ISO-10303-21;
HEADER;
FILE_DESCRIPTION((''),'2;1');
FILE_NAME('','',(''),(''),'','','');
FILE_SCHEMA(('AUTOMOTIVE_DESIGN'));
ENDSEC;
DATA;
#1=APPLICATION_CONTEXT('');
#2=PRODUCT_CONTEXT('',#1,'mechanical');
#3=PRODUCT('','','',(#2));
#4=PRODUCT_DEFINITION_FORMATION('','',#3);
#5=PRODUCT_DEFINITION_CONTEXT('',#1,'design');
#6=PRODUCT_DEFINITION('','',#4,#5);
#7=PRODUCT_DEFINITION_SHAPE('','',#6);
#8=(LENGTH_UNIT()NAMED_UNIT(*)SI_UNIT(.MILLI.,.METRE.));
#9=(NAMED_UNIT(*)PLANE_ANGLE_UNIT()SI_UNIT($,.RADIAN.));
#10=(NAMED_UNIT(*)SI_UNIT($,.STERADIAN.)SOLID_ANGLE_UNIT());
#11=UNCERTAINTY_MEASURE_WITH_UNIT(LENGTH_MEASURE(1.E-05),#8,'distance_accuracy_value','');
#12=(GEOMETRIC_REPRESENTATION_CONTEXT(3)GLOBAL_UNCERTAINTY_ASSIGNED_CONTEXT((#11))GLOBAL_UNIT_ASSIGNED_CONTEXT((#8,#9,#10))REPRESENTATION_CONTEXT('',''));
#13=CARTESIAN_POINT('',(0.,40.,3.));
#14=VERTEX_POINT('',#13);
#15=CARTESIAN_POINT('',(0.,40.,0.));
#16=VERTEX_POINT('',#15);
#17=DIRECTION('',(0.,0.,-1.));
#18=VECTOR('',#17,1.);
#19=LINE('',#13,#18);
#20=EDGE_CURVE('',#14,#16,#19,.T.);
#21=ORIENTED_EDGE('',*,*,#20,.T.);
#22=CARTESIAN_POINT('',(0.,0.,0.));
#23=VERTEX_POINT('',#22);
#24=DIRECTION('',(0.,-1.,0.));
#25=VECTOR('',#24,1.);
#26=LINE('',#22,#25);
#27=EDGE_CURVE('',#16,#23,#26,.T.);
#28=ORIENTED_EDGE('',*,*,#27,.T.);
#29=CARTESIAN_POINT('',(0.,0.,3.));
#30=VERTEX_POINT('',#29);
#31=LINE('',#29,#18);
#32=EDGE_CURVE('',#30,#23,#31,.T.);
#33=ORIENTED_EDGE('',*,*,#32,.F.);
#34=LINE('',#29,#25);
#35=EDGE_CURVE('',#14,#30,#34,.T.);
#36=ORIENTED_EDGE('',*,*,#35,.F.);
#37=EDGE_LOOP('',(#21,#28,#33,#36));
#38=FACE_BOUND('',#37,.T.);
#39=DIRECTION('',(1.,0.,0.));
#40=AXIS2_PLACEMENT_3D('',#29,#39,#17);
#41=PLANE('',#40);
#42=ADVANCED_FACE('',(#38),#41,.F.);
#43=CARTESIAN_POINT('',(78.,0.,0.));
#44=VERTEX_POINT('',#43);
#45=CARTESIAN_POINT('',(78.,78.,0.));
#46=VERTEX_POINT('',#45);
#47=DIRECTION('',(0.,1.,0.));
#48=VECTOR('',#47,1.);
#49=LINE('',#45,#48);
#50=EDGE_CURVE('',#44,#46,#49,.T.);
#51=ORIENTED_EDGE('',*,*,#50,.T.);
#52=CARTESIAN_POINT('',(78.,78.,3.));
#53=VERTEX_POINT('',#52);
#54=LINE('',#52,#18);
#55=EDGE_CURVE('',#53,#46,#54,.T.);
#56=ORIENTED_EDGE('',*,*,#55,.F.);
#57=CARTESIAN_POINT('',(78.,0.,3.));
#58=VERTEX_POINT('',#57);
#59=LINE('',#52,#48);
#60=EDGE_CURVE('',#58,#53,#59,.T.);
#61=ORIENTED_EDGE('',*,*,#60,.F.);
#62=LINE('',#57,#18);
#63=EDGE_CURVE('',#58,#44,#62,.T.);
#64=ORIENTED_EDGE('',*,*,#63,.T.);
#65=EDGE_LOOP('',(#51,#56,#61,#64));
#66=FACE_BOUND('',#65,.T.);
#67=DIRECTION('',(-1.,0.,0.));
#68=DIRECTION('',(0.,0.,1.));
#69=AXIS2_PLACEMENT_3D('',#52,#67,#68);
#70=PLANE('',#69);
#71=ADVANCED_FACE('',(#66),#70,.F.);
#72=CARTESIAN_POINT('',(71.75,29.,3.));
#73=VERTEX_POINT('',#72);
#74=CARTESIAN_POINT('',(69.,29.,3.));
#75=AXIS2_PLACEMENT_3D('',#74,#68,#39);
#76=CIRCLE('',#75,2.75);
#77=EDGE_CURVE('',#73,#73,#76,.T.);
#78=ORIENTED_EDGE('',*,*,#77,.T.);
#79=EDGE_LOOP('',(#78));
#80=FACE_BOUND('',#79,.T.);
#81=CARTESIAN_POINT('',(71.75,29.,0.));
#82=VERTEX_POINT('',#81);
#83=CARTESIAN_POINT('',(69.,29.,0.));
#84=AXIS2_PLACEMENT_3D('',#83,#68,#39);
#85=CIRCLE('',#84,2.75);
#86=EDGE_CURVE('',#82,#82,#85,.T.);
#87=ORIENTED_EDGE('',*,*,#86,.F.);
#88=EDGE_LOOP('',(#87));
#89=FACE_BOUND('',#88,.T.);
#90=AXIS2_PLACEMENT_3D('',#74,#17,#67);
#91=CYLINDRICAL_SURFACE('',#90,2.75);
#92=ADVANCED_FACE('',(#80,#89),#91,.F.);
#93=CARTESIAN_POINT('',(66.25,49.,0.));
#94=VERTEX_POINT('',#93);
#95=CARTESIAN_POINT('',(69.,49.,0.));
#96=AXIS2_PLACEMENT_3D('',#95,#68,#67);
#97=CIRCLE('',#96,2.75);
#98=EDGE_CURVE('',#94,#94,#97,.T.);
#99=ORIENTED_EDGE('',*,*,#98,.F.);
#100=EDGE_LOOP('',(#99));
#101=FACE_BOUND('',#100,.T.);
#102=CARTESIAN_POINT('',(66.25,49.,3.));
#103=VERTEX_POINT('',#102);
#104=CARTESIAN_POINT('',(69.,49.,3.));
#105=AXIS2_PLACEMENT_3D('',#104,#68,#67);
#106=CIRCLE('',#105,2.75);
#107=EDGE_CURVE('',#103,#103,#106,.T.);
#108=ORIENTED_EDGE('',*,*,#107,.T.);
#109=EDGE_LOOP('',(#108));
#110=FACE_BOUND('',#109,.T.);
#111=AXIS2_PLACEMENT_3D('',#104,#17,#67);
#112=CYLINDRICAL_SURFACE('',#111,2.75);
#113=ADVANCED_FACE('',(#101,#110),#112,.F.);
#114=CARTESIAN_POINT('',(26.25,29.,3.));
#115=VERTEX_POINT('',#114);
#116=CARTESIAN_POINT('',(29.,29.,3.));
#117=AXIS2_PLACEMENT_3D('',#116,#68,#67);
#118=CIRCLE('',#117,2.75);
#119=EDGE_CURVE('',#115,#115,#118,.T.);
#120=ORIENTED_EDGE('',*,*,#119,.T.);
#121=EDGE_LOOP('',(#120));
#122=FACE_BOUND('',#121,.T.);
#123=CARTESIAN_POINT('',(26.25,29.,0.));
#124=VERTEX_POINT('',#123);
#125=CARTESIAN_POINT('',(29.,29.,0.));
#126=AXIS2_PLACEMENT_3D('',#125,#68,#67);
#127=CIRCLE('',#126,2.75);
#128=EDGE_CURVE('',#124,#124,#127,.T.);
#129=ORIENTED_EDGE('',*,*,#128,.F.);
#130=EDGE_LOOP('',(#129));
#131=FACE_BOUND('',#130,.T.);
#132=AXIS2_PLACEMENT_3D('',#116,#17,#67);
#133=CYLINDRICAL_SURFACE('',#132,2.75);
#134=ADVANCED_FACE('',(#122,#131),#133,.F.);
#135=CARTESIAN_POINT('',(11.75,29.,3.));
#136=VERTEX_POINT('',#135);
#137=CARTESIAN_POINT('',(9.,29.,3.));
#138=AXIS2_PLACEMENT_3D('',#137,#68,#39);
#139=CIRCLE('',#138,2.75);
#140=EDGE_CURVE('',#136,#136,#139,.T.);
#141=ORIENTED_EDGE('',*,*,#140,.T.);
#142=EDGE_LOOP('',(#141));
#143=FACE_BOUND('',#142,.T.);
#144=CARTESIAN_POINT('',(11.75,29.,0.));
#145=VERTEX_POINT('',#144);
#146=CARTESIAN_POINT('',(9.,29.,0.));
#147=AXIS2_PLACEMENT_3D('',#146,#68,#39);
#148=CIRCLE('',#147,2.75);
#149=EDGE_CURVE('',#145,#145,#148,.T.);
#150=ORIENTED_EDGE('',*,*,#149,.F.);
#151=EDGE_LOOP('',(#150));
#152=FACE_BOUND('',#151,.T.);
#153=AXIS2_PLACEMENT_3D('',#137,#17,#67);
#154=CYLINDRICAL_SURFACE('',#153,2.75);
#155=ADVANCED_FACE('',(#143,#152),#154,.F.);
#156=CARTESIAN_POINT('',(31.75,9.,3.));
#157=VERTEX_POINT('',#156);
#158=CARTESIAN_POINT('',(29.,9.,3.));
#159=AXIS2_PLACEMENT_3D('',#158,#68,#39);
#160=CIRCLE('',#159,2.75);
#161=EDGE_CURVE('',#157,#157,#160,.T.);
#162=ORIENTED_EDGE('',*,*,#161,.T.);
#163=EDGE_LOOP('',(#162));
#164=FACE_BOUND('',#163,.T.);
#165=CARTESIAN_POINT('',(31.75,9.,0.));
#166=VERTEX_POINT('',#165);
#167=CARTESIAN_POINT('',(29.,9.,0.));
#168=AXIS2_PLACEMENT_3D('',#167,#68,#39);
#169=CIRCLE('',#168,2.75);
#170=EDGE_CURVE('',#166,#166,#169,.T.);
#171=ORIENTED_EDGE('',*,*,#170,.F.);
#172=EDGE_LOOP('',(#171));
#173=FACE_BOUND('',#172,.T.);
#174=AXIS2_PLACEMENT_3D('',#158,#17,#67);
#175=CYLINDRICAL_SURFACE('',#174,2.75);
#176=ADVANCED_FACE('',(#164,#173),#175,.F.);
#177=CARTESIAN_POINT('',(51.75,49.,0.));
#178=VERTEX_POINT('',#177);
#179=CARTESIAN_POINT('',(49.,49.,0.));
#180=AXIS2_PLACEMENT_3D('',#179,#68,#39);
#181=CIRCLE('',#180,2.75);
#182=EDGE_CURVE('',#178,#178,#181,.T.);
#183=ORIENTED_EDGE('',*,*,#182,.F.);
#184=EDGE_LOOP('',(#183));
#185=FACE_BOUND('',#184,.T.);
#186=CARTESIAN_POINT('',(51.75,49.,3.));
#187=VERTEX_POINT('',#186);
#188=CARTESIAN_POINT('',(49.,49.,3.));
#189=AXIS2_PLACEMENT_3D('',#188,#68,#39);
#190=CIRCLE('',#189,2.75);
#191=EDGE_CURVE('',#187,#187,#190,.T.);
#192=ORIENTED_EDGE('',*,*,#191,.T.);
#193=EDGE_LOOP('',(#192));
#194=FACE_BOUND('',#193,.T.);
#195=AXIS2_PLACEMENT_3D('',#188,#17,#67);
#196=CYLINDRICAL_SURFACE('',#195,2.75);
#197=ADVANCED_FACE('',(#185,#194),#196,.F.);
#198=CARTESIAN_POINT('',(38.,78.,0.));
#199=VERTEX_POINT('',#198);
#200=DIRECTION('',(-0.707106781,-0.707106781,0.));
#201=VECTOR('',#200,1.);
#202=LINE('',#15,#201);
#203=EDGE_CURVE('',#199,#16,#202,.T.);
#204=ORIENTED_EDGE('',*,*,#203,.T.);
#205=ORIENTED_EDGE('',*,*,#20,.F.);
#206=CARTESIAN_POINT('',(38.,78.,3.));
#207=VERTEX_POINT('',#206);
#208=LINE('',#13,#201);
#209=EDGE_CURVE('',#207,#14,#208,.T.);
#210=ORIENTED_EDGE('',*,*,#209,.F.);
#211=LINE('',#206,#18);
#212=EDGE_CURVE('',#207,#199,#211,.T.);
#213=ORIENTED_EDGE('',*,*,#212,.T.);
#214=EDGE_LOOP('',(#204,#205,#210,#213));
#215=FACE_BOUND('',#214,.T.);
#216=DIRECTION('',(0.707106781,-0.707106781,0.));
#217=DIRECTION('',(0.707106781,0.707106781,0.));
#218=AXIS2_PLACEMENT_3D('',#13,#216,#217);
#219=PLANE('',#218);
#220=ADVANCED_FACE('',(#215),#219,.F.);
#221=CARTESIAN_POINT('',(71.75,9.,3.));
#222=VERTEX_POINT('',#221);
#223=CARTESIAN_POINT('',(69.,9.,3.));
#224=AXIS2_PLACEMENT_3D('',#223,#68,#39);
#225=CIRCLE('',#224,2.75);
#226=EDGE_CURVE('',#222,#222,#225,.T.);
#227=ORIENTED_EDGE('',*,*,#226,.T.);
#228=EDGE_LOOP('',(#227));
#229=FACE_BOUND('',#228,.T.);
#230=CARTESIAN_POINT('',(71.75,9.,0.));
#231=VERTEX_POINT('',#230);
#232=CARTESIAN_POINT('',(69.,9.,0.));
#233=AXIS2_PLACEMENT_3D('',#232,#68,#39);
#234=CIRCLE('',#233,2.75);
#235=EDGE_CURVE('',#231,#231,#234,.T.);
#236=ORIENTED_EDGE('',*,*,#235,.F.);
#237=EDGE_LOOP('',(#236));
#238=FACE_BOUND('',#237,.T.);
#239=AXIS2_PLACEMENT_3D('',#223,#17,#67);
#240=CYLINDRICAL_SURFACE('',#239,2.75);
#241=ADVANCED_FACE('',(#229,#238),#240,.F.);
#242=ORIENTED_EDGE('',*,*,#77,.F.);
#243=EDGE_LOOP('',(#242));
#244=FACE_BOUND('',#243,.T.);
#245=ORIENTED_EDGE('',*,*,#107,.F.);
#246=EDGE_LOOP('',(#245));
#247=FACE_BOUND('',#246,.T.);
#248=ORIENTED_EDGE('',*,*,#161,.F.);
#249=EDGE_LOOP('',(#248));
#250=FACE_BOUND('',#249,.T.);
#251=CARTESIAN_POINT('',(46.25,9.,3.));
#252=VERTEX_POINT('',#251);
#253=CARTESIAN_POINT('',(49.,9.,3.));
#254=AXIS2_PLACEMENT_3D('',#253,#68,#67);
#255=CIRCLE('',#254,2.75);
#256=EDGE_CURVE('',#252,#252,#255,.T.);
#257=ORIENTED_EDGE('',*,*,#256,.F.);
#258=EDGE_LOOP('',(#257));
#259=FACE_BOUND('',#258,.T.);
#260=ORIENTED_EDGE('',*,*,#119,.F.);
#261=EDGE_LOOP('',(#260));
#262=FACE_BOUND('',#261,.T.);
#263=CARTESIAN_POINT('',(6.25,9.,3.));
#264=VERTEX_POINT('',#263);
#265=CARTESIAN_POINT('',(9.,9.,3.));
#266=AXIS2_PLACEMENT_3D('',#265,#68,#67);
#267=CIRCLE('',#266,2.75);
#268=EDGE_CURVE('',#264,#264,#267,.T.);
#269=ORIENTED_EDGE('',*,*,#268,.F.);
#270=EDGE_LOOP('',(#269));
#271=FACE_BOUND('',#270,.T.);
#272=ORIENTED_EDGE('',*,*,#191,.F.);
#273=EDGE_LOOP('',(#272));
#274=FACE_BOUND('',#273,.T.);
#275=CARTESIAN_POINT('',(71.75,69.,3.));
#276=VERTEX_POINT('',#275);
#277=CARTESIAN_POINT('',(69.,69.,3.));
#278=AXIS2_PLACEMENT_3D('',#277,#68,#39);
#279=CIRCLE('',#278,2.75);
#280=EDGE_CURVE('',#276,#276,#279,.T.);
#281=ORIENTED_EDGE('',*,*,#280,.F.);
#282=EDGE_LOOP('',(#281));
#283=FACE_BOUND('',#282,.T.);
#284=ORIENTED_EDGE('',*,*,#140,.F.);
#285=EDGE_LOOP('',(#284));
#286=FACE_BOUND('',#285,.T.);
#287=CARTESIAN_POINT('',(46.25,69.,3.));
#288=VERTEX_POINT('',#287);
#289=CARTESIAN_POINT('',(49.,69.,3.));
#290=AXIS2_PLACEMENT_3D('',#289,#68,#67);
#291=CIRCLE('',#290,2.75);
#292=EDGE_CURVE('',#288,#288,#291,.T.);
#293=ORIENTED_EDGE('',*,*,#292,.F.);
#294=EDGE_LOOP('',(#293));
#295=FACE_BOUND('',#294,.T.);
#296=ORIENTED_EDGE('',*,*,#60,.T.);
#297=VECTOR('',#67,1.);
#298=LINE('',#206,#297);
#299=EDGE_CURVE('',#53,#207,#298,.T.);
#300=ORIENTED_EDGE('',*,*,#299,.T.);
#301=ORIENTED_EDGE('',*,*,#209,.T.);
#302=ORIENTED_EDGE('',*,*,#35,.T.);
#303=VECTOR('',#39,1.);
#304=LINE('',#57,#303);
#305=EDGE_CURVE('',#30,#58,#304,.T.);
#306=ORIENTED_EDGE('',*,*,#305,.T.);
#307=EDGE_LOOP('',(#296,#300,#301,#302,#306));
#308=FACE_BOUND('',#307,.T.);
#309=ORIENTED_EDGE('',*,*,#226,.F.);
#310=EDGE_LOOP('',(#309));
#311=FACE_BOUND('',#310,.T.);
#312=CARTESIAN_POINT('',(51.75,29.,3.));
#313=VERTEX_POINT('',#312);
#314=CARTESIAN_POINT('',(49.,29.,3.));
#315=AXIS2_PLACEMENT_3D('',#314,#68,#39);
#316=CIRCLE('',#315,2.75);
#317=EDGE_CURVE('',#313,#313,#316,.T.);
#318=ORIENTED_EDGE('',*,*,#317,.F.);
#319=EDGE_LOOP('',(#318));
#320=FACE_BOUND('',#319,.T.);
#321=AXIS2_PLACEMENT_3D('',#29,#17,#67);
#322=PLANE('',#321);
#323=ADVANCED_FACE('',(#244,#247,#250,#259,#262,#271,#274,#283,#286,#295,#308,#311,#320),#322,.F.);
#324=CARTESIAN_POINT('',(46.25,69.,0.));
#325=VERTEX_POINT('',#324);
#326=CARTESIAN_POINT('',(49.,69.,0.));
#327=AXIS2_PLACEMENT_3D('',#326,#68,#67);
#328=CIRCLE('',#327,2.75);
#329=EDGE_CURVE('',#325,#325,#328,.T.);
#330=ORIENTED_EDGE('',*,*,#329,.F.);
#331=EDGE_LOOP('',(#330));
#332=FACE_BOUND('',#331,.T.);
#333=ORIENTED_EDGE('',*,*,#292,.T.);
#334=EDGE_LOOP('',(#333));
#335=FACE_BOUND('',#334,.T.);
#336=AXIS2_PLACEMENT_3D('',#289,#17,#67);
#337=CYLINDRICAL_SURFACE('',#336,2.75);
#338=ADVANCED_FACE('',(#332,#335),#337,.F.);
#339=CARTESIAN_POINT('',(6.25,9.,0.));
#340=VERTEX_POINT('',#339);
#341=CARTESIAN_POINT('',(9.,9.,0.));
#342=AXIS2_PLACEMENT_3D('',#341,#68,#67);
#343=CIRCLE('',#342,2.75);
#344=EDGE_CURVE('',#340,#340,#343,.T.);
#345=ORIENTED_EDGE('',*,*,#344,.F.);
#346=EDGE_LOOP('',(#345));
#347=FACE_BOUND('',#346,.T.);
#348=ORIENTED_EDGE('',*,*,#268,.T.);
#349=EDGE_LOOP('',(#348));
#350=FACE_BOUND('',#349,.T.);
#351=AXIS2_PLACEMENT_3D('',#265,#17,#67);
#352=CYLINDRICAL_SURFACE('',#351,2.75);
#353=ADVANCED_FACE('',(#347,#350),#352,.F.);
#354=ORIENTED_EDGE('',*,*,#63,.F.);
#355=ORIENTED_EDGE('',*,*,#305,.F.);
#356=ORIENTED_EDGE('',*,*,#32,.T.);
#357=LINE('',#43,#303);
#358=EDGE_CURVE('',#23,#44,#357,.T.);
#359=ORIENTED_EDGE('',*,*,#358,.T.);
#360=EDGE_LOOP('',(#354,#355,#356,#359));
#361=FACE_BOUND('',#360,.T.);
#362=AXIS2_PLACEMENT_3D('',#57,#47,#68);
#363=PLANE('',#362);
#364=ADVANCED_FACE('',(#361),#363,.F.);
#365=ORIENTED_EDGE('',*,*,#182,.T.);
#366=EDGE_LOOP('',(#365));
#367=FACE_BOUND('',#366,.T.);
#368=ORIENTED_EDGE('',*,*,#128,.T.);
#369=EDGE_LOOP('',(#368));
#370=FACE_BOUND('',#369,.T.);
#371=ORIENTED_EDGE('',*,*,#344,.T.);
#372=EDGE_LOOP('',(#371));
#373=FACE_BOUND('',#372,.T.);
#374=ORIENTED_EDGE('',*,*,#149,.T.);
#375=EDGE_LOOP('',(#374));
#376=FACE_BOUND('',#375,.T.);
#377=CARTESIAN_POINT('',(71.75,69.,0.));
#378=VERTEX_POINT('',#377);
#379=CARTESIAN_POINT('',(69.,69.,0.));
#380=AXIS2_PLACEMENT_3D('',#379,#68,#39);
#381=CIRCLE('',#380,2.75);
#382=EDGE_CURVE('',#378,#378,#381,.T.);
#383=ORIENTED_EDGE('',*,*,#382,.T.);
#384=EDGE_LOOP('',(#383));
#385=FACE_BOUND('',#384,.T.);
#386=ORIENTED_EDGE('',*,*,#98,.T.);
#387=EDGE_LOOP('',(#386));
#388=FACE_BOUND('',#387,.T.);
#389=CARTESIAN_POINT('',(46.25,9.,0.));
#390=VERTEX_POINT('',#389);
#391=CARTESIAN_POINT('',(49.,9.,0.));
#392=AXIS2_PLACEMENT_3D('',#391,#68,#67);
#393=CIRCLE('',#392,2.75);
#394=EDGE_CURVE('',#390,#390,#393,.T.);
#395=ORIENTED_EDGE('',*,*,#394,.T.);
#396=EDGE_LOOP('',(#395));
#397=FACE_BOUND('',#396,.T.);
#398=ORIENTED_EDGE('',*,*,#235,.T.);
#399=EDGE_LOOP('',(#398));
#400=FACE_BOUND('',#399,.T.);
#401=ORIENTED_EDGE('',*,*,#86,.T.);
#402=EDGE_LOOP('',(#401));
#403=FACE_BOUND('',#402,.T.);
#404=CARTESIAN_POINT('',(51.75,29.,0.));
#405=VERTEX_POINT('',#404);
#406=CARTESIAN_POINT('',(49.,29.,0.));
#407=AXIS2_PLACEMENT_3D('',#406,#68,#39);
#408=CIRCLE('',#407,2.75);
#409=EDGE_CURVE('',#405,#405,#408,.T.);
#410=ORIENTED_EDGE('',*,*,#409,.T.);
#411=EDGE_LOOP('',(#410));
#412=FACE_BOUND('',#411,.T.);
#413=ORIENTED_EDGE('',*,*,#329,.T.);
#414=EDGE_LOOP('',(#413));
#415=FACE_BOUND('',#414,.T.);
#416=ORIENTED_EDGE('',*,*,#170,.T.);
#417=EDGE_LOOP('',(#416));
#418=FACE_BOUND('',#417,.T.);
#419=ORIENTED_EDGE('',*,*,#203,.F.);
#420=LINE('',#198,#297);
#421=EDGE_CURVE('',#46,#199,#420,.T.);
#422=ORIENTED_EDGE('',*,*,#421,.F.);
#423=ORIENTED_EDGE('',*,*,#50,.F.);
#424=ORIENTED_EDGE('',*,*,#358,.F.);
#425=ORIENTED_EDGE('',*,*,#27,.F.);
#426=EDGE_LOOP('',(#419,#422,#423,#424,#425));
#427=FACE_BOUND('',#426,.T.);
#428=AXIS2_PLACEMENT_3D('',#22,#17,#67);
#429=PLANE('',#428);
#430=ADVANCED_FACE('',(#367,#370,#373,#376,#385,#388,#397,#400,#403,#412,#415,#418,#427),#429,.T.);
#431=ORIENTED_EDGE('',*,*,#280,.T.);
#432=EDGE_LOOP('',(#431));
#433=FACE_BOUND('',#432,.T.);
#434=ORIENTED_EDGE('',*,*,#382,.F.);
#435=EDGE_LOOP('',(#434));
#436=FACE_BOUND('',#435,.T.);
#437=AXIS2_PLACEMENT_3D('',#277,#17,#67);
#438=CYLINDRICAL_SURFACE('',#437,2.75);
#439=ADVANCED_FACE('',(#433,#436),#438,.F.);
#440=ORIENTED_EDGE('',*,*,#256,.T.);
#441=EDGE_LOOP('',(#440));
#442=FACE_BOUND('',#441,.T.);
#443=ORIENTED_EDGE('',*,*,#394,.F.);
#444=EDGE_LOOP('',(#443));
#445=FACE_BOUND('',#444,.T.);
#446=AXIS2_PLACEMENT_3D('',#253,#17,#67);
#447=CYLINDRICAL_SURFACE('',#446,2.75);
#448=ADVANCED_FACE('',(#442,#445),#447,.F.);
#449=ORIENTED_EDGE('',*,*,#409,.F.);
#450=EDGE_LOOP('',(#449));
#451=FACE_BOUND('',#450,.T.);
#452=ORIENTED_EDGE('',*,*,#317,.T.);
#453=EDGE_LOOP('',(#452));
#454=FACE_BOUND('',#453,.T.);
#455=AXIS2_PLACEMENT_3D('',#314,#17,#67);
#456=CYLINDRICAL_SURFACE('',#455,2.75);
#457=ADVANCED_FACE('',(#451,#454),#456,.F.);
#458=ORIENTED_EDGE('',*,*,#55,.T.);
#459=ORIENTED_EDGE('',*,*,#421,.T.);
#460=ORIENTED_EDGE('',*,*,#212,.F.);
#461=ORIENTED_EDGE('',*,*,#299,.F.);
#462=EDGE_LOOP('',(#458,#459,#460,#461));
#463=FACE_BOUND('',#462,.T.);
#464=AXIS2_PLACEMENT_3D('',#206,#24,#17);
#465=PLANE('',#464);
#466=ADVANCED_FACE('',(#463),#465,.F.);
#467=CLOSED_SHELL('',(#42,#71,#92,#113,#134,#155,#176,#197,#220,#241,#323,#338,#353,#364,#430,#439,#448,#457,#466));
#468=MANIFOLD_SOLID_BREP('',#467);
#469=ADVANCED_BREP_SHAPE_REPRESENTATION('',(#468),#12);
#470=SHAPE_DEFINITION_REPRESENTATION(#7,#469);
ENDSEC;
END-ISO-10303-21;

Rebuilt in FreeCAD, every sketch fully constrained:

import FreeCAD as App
import Part
import Sketcher
from FreeCAD import Vector


def add_polygon(sketch, points):
    """Adds a closed chain of lines whose ends are joined by coincident constraints."""
    first, n = sketch.GeometryCount, len(points)
    for a, b in zip(points, points[1:] + points[:1]):
        sketch.addGeometry(Part.LineSegment(App.Vector(*a, 0), App.Vector(*b, 0)), False)
    for i in range(n):
        sketch.addConstraint(Sketcher.Constraint("Coincident", first + i, 2, first + (i + 1) % n, 1))

doc = App.newDocument("Part")
params = doc.addObject("Spreadsheet::Sheet", "Params")
for row, (alias, value) in enumerate([
    ("sketch1_diameter", "5.5 mm"),
    ("sketch1_width", "78 mm"),
    ("sketch1_width2", "40 mm"),
    ("pad1_length", "3 mm"),
], start=1):
    params.set(f"A{row}", alias)
    params.set(f"B{row}", "=" + value)
    params.setAlias(f"B{row}", alias)

body = doc.addObject("PartDesign::Body", "Body")

# Sketch on XY plane
sketch1 = body.newObject("Sketcher::SketchObject", "Sketch")
sketch1.AttachmentSupport = (doc.getObject("XY_Plane"), [""])
sketch1.MapMode = "FlatFace"
add_polygon(sketch1, [(0, 40), (0, 0), (78, 0), (78, 78), (38, 78)])  # lines 0-4
sketch1.addGeometry(Part.Circle(Vector(69, 9, 0), Vector(0, 0, 1), 2.8), False)  # 5
sketch1.addGeometry(Part.Circle(Vector(49, 9, 0), Vector(0, 0, 1), 2.8), False)  # 6
sketch1.addGeometry(Part.Circle(Vector(69, 29, 0), Vector(0, 0, 1), 2.8), False)  # 7
sketch1.addGeometry(Part.Circle(Vector(49, 29, 0), Vector(0, 0, 1), 2.8), False)  # 8
sketch1.addGeometry(Part.Circle(Vector(29, 9, 0), Vector(0, 0, 1), 2.8), False)  # 9
sketch1.addGeometry(Part.Circle(Vector(9, 9, 0), Vector(0, 0, 1), 2.8), False)  # 10
sketch1.addGeometry(Part.Circle(Vector(29, 29, 0), Vector(0, 0, 1), 2.8), False)  # 11
sketch1.addGeometry(Part.Circle(Vector(9, 29, 0), Vector(0, 0, 1), 2.8), False)  # 12
sketch1.addGeometry(Part.Circle(Vector(69, 49, 0), Vector(0, 0, 1), 2.8), False)  # 13
sketch1.addGeometry(Part.Circle(Vector(49, 49, 0), Vector(0, 0, 1), 2.8), False)  # 14
sketch1.addGeometry(Part.Circle(Vector(69, 69, 0), Vector(0, 0, 1), 2.8), False)  # 15
sketch1.addGeometry(Part.Circle(Vector(49, 69, 0), Vector(0, 0, 1), 2.8), False)  # 16
sketch1.addConstraint([
    Sketcher.Constraint("Vertical", 0),
    Sketcher.Constraint("Horizontal", 1),
    Sketcher.Constraint("Vertical", 2),
    Sketcher.Constraint("Horizontal", 3),
    Sketcher.Constraint("Coincident", 0, 2, -1, 1),
    Sketcher.Constraint("Equal", 5, 6),
    Sketcher.Constraint("Equal", 6, 7),
    Sketcher.Constraint("Equal", 7, 8),
    Sketcher.Constraint("Equal", 8, 9),
    Sketcher.Constraint("Equal", 9, 10),
    Sketcher.Constraint("Equal", 10, 11),
    Sketcher.Constraint("Equal", 11, 12),
    Sketcher.Constraint("Equal", 12, 13),
    Sketcher.Constraint("Equal", 13, 14),
    Sketcher.Constraint("Equal", 14, 15),
    Sketcher.Constraint("Equal", 15, 16),
    Sketcher.Constraint("Horizontal", 5, 3, 6, 3),
    Sketcher.Constraint("Horizontal", 7, 3, 8, 3),
    Sketcher.Constraint("Horizontal", 6, 3, 9, 3),
    Sketcher.Constraint("Horizontal", 9, 3, 10, 3),
    Sketcher.Constraint("Horizontal", 8, 3, 11, 3),
    Sketcher.Constraint("Horizontal", 11, 3, 12, 3),
    Sketcher.Constraint("Horizontal", 13, 3, 14, 3),
    Sketcher.Constraint("Horizontal", 15, 3, 16, 3),
    Sketcher.Constraint("Vertical", 5, 3, 7, 3),
    Sketcher.Constraint("Vertical", 6, 3, 8, 3),
    Sketcher.Constraint("Vertical", 9, 3, 11, 3),
    Sketcher.Constraint("Vertical", 10, 3, 12, 3),
    Sketcher.Constraint("Vertical", 7, 3, 13, 3),
    Sketcher.Constraint("Vertical", 8, 3, 14, 3),
    Sketcher.Constraint("Vertical", 13, 3, 15, 3),
    Sketcher.Constraint("Vertical", 14, 3, 16, 3),
    Sketcher.Constraint("Equal", 3, 0),
    Sketcher.Constraint("Equal", 1, 2),
    Sketcher.Constraint("Diameter", 5, 5.5),
    Sketcher.Constraint("DistanceX", 1, 1, 1, 2, 78.0),
    Sketcher.Constraint("DistanceX", 3, 2, 3, 1, 40.0),
    Sketcher.Constraint("DistanceX", -1, 1, 5, 3, 69.0),
    Sketcher.Constraint("DistanceY", -1, 1, 5, 3, 9.0),
    Sketcher.Constraint("DistanceX", -1, 1, 6, 3, 49.0),
    Sketcher.Constraint("DistanceY", -1, 1, 7, 3, 29.0),
    Sketcher.Constraint("DistanceX", -1, 1, 9, 3, 29.0),
    Sketcher.Constraint("DistanceX", -1, 1, 10, 3, 9.0),
    Sketcher.Constraint("DistanceY", -1, 1, 13, 3, 49.0),
    Sketcher.Constraint("DistanceY", -1, 1, 15, 3, 69.0),
])
sketch1.setExpression("Constraints[39]", "Params.sketch1_diameter")
sketch1.setExpression("Constraints[40]", "Params.sketch1_width")
sketch1.setExpression("Constraints[41]", "Params.sketch1_width2")
pad1 = body.newObject("PartDesign::Pad", "Pad")
pad1.Profile = sketch1
pad1.setExpression("Length", "Params.pad1_length")

doc.recompute()
